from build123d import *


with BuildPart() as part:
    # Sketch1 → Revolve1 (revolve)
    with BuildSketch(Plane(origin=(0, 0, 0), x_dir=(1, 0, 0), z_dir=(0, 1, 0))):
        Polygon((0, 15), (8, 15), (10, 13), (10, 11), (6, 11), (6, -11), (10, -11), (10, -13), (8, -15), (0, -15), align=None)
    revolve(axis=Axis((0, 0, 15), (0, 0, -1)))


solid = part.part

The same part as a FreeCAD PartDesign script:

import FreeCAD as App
import Part
import Sketcher
from FreeCAD import Vector

doc = App.newDocument("Part")
body = doc.addObject("PartDesign::Body", "Body")

sketch1 = body.newObject("Sketcher::SketchObject", "Sketch")
sketch1.AttachmentSupport = (doc.getObject("XZ_Plane"), [""])
sketch1.MapMode = "FlatFace"
sketch1.addGeometry([
    Part.LineSegment(Vector(8, -15, 0), Vector(0, -15, 0)),
    Part.LineSegment(Vector(0, -15, 0), Vector(0, 15, 0)),
    Part.LineSegment(Vector(0, 15, 0), Vector(8, 15, 0)),
    Part.LineSegment(Vector(8, 15, 0), Vector(10, 13, 0)),
    Part.LineSegment(Vector(10, 13, 0), Vector(10, 11, 0)),
    Part.LineSegment(Vector(10, 11, 0), Vector(6, 11, 0)),
    Part.LineSegment(Vector(6, 11, 0), Vector(6, -11, 0)),
    Part.LineSegment(Vector(6, -11, 0), Vector(10, -11, 0)),
    Part.LineSegment(Vector(10, -11, 0), Vector(10, -13, 0)),
    Part.LineSegment(Vector(10, -13, 0), Vector(8, -15, 0)),
], False)
sketch1.addConstraint([
    Sketcher.Constraint("Coincident", 0, 2, 1, 1),
    Sketcher.Constraint("Coincident", 1, 2, 2, 1),
    Sketcher.Constraint("Coincident", 2, 2, 3, 1),
    Sketcher.Constraint("Coincident", 3, 2, 4, 1),
    Sketcher.Constraint("Coincident", 4, 2, 5, 1),
    Sketcher.Constraint("Coincident", 5, 2, 6, 1),
    Sketcher.Constraint("Coincident", 6, 2, 7, 1),
    Sketcher.Constraint("Coincident", 7, 2, 8, 1),
    Sketcher.Constraint("Coincident", 8, 2, 9, 1),
    Sketcher.Constraint("Coincident", 9, 2, 0, 1),
    Sketcher.Constraint("Horizontal", 0),
    Sketcher.Constraint("Vertical", 1),
    Sketcher.Constraint("Horizontal", 2),
    Sketcher.Constraint("Vertical", 4),
    Sketcher.Constraint("Horizontal", 5),
    Sketcher.Constraint("Vertical", 6),
    Sketcher.Constraint("Horizontal", 7),
    Sketcher.Constraint("Vertical", 8),
    Sketcher.Constraint("Symmetric", 0, 2, 1, 2, -1, 1),
    Sketcher.Constraint("Symmetric", 4, 2, 7, 2, -1),
    Sketcher.Constraint("Perpendicular", 3, 9),
    Sketcher.Constraint("Vertical", 2, 2, 9, 2),
    Sketcher.Constraint("Equal", 4, 8),
    Sketcher.Constraint("DistanceX", 0, 2, 0, 1, 8.0),
    Sketcher.Constraint("DistanceX", 5, 2, 5, 1, 4.0),
    Sketcher.Constraint("DistanceY", 1, 1, 1, 2, 30.0),
    Sketcher.Constraint("DistanceY", 4, 2, 4, 1, 2.0),
    Sketcher.Constraint("DistanceY", 6, 2, 6, 1, 22.0),
])
revolution = body.newObject("PartDesign::Revolution", "Revolution")
revolution.Profile = sketch1
revolution.ReferenceAxis = (sketch1, ["V_Axis"])
revolution.Angle = 360

doc.recompute()
